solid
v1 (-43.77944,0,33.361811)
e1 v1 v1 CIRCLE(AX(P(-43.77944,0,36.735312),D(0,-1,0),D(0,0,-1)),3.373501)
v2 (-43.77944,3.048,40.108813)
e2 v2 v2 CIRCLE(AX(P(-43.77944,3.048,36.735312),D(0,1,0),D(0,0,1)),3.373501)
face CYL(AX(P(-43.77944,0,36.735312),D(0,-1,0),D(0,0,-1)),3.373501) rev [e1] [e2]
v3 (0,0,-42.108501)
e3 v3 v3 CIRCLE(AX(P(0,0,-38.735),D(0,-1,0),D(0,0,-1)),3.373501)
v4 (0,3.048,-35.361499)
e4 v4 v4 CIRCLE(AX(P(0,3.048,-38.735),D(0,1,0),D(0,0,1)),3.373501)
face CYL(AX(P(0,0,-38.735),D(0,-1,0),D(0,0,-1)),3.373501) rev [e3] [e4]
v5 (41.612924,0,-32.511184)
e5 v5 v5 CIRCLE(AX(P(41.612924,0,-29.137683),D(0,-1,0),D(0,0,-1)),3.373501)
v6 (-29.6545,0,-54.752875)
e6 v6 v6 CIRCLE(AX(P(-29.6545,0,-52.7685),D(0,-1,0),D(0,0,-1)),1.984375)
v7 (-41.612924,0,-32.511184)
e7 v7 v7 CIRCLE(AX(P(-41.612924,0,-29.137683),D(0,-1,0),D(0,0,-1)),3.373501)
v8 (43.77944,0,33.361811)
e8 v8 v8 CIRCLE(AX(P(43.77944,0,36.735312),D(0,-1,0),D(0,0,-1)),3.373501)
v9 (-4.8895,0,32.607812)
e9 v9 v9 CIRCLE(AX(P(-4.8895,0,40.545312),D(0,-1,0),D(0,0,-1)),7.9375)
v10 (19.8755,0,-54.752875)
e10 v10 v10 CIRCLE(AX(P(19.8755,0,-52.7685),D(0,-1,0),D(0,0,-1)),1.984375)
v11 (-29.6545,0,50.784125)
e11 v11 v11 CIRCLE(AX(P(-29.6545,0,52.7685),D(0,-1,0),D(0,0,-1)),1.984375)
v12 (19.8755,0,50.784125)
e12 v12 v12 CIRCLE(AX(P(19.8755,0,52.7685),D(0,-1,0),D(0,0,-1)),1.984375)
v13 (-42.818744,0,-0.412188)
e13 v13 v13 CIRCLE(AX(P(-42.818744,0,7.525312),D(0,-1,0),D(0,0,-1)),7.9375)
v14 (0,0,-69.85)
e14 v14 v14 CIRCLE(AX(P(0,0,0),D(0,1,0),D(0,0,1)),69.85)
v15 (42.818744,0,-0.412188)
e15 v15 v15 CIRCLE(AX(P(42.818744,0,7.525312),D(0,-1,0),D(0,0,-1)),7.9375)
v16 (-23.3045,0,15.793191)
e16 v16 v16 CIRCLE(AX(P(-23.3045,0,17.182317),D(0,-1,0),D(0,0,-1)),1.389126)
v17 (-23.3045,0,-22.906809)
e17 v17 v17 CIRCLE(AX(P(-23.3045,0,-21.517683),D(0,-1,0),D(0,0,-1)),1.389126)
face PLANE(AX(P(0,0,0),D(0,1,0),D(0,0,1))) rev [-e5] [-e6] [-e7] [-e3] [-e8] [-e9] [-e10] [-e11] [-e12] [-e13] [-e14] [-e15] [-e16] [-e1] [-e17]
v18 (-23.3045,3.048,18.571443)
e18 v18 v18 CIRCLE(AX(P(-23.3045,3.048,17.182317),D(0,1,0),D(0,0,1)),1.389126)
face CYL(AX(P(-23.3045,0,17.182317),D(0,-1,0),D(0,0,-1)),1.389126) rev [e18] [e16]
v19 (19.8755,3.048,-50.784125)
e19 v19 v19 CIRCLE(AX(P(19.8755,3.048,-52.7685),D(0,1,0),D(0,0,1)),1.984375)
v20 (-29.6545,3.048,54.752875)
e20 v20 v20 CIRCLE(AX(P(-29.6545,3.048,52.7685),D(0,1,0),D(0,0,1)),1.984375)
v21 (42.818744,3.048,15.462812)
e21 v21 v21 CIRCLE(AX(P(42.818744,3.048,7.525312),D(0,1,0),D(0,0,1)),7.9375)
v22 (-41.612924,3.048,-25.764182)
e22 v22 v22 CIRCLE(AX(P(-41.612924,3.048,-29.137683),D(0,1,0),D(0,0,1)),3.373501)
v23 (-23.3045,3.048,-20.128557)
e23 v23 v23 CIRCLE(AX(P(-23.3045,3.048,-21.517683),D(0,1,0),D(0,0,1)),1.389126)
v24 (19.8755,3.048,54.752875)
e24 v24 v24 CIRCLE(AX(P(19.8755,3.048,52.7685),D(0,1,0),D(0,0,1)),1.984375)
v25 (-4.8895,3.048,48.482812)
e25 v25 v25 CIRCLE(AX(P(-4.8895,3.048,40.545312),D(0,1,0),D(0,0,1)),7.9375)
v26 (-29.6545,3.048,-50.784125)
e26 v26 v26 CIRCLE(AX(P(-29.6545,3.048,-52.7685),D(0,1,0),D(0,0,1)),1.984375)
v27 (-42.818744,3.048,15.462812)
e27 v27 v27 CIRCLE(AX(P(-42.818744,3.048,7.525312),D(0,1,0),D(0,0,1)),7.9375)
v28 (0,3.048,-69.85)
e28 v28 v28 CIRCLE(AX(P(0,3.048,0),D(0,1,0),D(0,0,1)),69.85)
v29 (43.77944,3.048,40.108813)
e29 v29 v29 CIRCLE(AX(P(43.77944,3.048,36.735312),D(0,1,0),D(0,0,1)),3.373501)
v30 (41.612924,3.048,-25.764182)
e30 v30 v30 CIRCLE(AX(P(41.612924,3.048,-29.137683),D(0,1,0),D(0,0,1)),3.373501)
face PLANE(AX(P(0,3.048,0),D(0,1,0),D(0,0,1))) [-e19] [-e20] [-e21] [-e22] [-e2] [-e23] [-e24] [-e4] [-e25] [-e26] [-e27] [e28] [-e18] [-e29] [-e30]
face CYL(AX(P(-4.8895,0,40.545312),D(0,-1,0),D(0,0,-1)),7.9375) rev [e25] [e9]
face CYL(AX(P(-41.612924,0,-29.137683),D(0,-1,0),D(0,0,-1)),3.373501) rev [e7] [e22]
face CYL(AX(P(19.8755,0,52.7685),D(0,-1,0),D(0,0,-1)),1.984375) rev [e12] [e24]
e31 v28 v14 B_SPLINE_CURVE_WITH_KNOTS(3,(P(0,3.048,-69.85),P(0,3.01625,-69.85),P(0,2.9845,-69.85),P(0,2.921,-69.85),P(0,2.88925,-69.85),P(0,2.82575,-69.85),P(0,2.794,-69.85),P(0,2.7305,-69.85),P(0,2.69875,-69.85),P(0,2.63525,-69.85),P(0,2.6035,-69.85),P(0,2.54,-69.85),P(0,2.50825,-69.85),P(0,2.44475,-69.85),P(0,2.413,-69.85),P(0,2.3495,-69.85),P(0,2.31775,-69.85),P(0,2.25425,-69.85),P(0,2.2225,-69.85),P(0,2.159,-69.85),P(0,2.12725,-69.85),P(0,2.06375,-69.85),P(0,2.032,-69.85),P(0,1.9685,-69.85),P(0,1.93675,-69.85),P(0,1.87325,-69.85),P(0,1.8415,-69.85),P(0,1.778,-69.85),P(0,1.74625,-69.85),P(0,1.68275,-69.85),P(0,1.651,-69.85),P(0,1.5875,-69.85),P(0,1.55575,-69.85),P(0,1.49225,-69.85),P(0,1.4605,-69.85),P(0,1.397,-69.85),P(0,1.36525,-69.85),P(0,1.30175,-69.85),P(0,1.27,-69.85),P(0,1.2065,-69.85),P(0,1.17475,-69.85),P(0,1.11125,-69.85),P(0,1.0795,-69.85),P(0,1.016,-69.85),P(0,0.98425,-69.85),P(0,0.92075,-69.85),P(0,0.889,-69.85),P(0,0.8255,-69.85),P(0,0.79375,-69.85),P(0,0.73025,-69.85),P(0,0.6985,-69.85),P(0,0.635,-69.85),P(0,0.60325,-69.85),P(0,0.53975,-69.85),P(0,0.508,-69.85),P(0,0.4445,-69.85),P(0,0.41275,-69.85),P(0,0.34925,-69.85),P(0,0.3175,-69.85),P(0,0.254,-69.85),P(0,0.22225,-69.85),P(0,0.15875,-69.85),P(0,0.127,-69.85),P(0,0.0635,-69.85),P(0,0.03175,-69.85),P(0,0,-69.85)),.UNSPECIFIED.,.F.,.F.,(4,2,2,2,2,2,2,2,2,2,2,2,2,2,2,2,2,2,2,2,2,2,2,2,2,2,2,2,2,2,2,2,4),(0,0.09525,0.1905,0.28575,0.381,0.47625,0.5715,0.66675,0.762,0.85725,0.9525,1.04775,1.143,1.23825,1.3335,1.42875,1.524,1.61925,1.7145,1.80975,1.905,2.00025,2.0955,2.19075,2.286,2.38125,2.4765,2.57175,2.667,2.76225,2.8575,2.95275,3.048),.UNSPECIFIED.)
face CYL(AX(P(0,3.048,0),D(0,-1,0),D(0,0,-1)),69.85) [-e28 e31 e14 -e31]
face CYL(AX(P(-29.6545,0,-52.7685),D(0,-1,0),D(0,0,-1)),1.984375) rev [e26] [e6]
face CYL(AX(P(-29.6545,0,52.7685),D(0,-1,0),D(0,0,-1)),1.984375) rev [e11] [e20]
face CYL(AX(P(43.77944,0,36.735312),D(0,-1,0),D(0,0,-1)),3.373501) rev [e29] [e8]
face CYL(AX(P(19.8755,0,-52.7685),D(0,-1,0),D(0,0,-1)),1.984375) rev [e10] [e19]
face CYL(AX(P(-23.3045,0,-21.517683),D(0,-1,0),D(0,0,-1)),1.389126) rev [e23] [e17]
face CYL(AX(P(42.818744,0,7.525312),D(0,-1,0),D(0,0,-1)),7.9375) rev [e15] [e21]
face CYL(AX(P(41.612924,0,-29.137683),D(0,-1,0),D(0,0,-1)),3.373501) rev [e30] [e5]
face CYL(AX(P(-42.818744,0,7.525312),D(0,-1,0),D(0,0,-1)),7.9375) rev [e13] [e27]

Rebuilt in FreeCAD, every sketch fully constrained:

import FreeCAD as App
import Part
import Sketcher
Q = App.Units.Quantity

doc = App.newDocument("Part")
body = doc.addObject("PartDesign::Body", "Body")

# Sketch on XZ plane
sketch1 = body.newObject("Sketcher::SketchObject", "Sketch")
sketch1.AttachmentSupport = (doc.getObject("XZ_Plane"), [""])
sketch1.MapMode = "FlatFace"
sketch1.addGeometry(Part.Circle(App.Vector(0, 0, 0), App.Vector(0, 0, 1), 69.85), False)
sketch1.addConstraint([
    Sketcher.Constraint("Coincident", 0, 3, -1, 1),
    Sketcher.Constraint("Diameter", 0, Q("5.5 in")),
])
pad1 = body.newObject("PartDesign::Pad", "Pad")
pad1.Profile = sketch1
pad1.Length = Q("0.12 in")
pad1.Reversed = True

# Sketch on XZ plane
sketch2 = body.newObject("Sketcher::SketchObject", "Sketch001")
sketch2.AttachmentSupport = (doc.getObject("XZ_Plane"), [""])
sketch2.MapMode = "FlatFace"
sketch2.addGeometry([
    Part.Circle(App.Vector(-43.77944, 36.735312, 0), App.Vector(0, 0, 1), 3.373501),  # 0
    Part.Circle(App.Vector(43.77944, 36.735312, 0), App.Vector(0, 0, 1), 3.373501),  # 1
    Part.Circle(App.Vector(41.612924, -29.137683, 0), App.Vector(0, 0, 1), 3.373501),  # 2
    Part.Circle(App.Vector(-41.612924, -29.137683, 0), App.Vector(0, 0, 1), 3.373501),  # 3
    Part.Circle(App.Vector(0, -38.735, 0), App.Vector(0, 0, 1), 3.373501),  # 4
], False)
sketch2.addConstraint([
    Sketcher.Constraint("Equal", 0, 1),
    Sketcher.Constraint("Equal", 1, 2),
    Sketcher.Constraint("Equal", 2, 3),
    Sketcher.Constraint("Equal", 3, 4),
    Sketcher.Constraint("Symmetric", 0, 3, 1, 3, -2),
    Sketcher.Constraint("Symmetric", 2, 3, 3, 3, -2),
    Sketcher.Constraint("PointOnObject", 4, 3, -2),
    Sketcher.Constraint("DistanceY", 4, 3, -1, 1, Q("1.525 in")),
    Sketcher.Constraint("Diameter", 0, 6.747002),
    Sketcher.Constraint("DistanceX", 0, 3, -1, 1, Q("1.7236 in")),
    Sketcher.Constraint("DistanceY", -1, 1, 0, 3, 36.735312),
    Sketcher.Constraint("DistanceX", -1, 1, 2, 3, 41.612924),
    Sketcher.Constraint("DistanceY", 2, 3, -1, 1, 29.137683),
])
doc.recompute()
hole = body.newObject("PartDesign::Hole", "Hole")
hole.Profile = sketch2
hole.ThreadType = "None"
hole.Diameter = 6.747002
hole.DepthType = "Dimension"
hole.Depth = Q("0.65 in")
hole.DrillPoint = "Angled"
hole.DrillPointAngle = 118

# Sketch on XZ plane
sketch3 = body.newObject("Sketcher::SketchObject", "Sketch002")
sketch3.AttachmentSupport = (doc.getObject("XZ_Plane"), [""])
sketch3.MapMode = "FlatFace"
sketch3.addGeometry([
    Part.Circle(App.Vector(-29.6545, 52.7685, 0), App.Vector(0, 0, 1), 1.984375),
    Part.Circle(App.Vector(19.8755, 52.7685, 0), App.Vector(0, 0, 1), 1.984375),
    Part.Circle(App.Vector(19.8755, -52.7685, 0), App.Vector(0, 0, 1), 1.984375),
    Part.Circle(App.Vector(-29.6545, -52.7685, 0), App.Vector(0, 0, 1), 1.984375),
], False)
sketch3.addConstraint([
    Sketcher.Constraint("Equal", 0, 1),
    Sketcher.Constraint("Equal", 1, 2),
    Sketcher.Constraint("Equal", 2, 3),
    Sketcher.Constraint("Symmetric", 1, 3, 2, 3, -1),
    Sketcher.Constraint("Symmetric", 0, 3, 3, 3, -1),
    Sketcher.Constraint("Horizontal", 0, 3, 1, 3),
    Sketcher.Constraint("Diameter", 0, Q("0.15625 in")),
    Sketcher.Constraint("DistanceX", 0, 3, 1, 3, Q("1.95 in")),
    Sketcher.Constraint("DistanceY", 2, 3, 1, 3, Q("4.155 in")),
    Sketcher.Constraint("DistanceX", 0, 3, -1, 1, Q("1.1675 in")),
])
doc.recompute()
hole2 = body.newObject("PartDesign::Hole", "Hole001")
hole2.Profile = sketch3
hole2.ThreadType = "None"
hole2.Diameter = Q("0.15625 in")
hole2.DepthType = "Dimension"
hole2.Depth = Q("0.65 in")
hole2.DrillPoint = "Angled"
hole2.DrillPointAngle = 118

# Sketch on XZ plane
sketch4 = body.newObject("Sketcher::SketchObject", "Sketch003")
sketch4.AttachmentSupport = (doc.getObject("XZ_Plane"), [""])
sketch4.MapMode = "FlatFace"
sketch4.addGeometry([
    Part.Circle(App.Vector(-42.818744, 7.525312, 0), App.Vector(0, 0, 1), 7.9375),
    Part.Circle(App.Vector(-4.8895, 40.545312, 0), App.Vector(0, 0, 1), 7.9375),
    Part.Circle(App.Vector(42.818744, 7.525312, 0), App.Vector(0, 0, 1), 7.9375),
], False)
sketch4.addConstraint([
    Sketcher.Constraint("Equal", 0, 1),
    Sketcher.Constraint("Equal", 1, 2),
    Sketcher.Constraint("Symmetric", 0, 3, 2, 3, -2),
    Sketcher.Constraint("Diameter", 0, Q("0.625 in")),
    Sketcher.Constraint("DistanceY", 0, 3, 1, 3, Q("1.3 in")),
    Sketcher.Constraint("DistanceX", 1, 3, -1, 1, Q("0.1925 in")),
    Sketcher.Constraint("DistanceY", -1, 1, 0, 3, 7.525312),
    Sketcher.Constraint("DistanceX", 0, 3, -1, 1, 42.818744),
])
doc.recompute()
hole3 = body.newObject("PartDesign::Hole", "Hole002")
hole3.Profile = sketch4
hole3.ThreadType = "None"
hole3.Diameter = Q("0.625 in")
hole3.DepthType = "Dimension"
hole3.Depth = Q("0.65 in")
hole3.DrillPoint = "Angled"
hole3.DrillPointAngle = 118

# Sketch on XZ plane
sketch5 = body.newObject("Sketcher::SketchObject", "Sketch004")
sketch5.AttachmentSupport = (doc.getObject("XZ_Plane"), [""])
sketch5.MapMode = "FlatFace"
sketch5.addGeometry([
    Part.Circle(App.Vector(-23.3045, 17.182317, 0), App.Vector(0, 0, 1), 1.389126),
    Part.Circle(App.Vector(-23.3045, -21.517683, 0), App.Vector(0, 0, 1), 1.389126),
], False)
sketch5.addConstraint([
    Sketcher.Constraint("Equal", 0, 1),
    Sketcher.Constraint("Vertical", 0, 3, 1, 3),
    Sketcher.Constraint("Diameter", 0, 2.778252),
    Sketcher.Constraint("DistanceX", 0, 3, -1, 1, Q("0.9175 in")),
    Sketcher.Constraint("DistanceY", 1, 3, 0, 3, 38.7),
    Sketcher.Constraint("DistanceY", -1, 1, 0, 3, 17.182317),
])
doc.recompute()
hole4 = body.newObject("PartDesign::Hole", "Hole003")
hole4.Profile = sketch5
hole4.ThreadType = "None"
hole4.Diameter = 2.778252
hole4.DepthType = "Dimension"
hole4.Depth = Q("0.65 in")
hole4.DrillPoint = "Angled"
hole4.DrillPointAngle = 118

doc.recompute()
